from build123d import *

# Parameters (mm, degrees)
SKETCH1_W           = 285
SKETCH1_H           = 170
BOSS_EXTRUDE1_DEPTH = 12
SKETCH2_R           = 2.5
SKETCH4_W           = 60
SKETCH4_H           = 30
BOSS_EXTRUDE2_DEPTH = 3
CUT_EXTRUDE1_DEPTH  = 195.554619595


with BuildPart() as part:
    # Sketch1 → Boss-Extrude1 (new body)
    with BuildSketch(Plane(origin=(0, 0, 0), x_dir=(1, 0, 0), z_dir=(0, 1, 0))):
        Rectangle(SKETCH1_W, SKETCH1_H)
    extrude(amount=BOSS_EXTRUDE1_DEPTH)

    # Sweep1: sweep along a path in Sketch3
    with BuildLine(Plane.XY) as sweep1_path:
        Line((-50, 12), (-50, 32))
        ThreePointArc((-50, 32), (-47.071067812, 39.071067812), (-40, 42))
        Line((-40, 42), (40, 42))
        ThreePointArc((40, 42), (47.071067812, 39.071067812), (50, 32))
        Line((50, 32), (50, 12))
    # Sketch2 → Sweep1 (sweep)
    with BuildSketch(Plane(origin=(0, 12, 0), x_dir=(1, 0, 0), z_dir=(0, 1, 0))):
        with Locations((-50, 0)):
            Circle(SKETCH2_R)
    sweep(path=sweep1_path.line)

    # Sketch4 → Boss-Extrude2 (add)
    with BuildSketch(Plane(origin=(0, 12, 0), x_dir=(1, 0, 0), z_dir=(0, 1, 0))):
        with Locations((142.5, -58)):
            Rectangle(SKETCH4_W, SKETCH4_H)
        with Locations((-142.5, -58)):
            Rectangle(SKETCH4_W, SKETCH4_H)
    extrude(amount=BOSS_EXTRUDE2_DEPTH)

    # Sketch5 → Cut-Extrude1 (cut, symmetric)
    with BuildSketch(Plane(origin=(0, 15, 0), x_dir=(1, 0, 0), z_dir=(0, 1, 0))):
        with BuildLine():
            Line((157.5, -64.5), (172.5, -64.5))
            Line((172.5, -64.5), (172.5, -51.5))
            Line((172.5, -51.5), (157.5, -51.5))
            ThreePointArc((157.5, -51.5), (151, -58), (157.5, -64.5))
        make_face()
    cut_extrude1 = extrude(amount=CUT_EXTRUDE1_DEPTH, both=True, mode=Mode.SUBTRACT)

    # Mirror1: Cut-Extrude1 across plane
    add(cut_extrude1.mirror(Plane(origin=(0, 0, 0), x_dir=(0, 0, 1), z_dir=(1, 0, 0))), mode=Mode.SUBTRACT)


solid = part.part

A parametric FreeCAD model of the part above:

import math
import FreeCAD as App
import Part
import Sketcher
from FreeCAD import Vector
Q = App.Units.Quantity


def add_polygon(sketch, points):
    """Adds a closed chain of lines whose ends are joined by coincident constraints."""
    first, n = sketch.GeometryCount, len(points)
    for a, b in zip(points, points[1:] + points[:1]):
        sketch.addGeometry(Part.LineSegment(App.Vector(*a, 0), App.Vector(*b, 0)), False)
    for i in range(n):
        sketch.addConstraint(Sketcher.Constraint("Coincident", first + i, 2, first + (i + 1) % n, 1))

doc = App.newDocument("Part")
body = doc.addObject("PartDesign::Body", "Body")

# Sketch on XZ plane
sketch1 = body.newObject("Sketcher::SketchObject", "Sketch")
sketch1.AttachmentSupport = (doc.getObject("XZ_Plane"), [""])
sketch1.MapMode = "FlatFace"
add_polygon(sketch1, [(-142, -85), (-142, 85), (142, 85), (142, -85)])  # lines 0-3
sketch1.addConstraint([
    Sketcher.Constraint("Vertical", 0),
    Sketcher.Constraint("Horizontal", 1),
    Sketcher.Constraint("Vertical", 2),
    Sketcher.Constraint("Horizontal", 3),
    Sketcher.Constraint("Symmetric", 0, 2, 2, 2, -1, 1),
    Sketcher.Constraint("DistanceX", 1, 1, 1, 2, Q("285 mm")),
    Sketcher.Constraint("DistanceY", 0, 1, 0, 2, Q("170 mm")),
])
pad1 = body.newObject("PartDesign::Pad", "Pad")
pad1.Profile = sketch1
pad1.Length = 12
pad1.Reversed = True

# Sketch on XZ plane
sketch2 = body.newObject("Sketcher::SketchObject", "Sketch001")
sketch2.AttachmentSupport = (doc.getObject("XZ_Plane"), [""])
sketch2.MapMode = "FlatFace"
sketch2.AttachmentOffset = App.Placement(Vector(0, 0, -12), App.Rotation())
sketch2.addGeometry(Part.Circle(Vector(-50, 0, 0), Vector(0, 0, 1), 2.5), False)
sketch2.addConstraint([
    Sketcher.Constraint("PointOnObject", 0, 3, -1),
    Sketcher.Constraint("Diameter", 0, Q("5 mm")),
    Sketcher.Constraint("DistanceX", 0, 3, -1, 1, Q("50 mm")),
])

# Sketch on XY plane
sketch3 = body.newObject("Sketcher::SketchObject", "Sketch002")
sketch3.AttachmentSupport = (doc.getObject("XY_Plane"), [""])
sketch3.MapMode = "FlatFace"
sketch3.addGeometry([
    Part.LineSegment(Vector(-50, 12, 0), Vector(-50, 32, 0)),  # 0
    Part.ArcOfCircle(Part.Circle(Vector(-40, 32, 0), Vector(0, 0, 1), 10), math.radians(90), math.radians(180)),  # 1
    Part.LineSegment(Vector(-40, 42, 0), Vector(40, 42, 0)),  # 2
    Part.ArcOfCircle(Part.Circle(Vector(40, 32, 0), Vector(0, 0, 1), 10), math.radians(0), math.radians(90)),  # 3
    Part.LineSegment(Vector(50, 32, 0), Vector(50, 12, 0)),  # 4
], False)
sketch3.addConstraint([
    Sketcher.Constraint("Tangent", 0, 2, 1, 2),
    Sketcher.Constraint("Tangent", 1, 1, 2, 1),
    Sketcher.Constraint("Tangent", 2, 2, 3, 2),
    Sketcher.Constraint("Tangent", 3, 1, 4, 1),
    Sketcher.Constraint("Vertical", 0),
    Sketcher.Constraint("Horizontal", 2),
    Sketcher.Constraint("Vertical", 4),
    Sketcher.Constraint("Equal", 1, 3),
    Sketcher.Constraint("Symmetric", 0, 1, 4, 2, -2),
    Sketcher.Constraint("Radius", 1, Q("10 mm")),
    Sketcher.Constraint("DistanceX", 2, 1, 2, 2, Q("80 mm")),
    Sketcher.Constraint("DistanceY", 0, 1, 0, 2, Q("20 mm")),
    Sketcher.Constraint("DistanceY", -1, 1, 1, 3, Q("32 mm")),
])
doc.recompute()

additivepipe = body.newObject("PartDesign::AdditivePipe", "AdditivePipe")
additivepipe.Profile = sketch2
additivepipe.Spine = (sketch3, ["Edge1", "Edge2", "Edge3", "Edge4", "Edge5"])

# Sketch on XZ plane
sketch4 = body.newObject("Sketcher::SketchObject", "Sketch003")
sketch4.AttachmentSupport = (doc.getObject("XZ_Plane"), [""])
sketch4.MapMode = "FlatFace"
sketch4.AttachmentOffset = App.Placement(Vector(0, 0, -12), App.Rotation())
add_polygon(sketch4, [(112, 43), (112, 73), (172, 73), (172, 43)])  # lines 0-3
add_polygon(sketch4, [(-172, 43), (-172, 73), (-112, 73), (-112, 43)])  # lines 4-7
sketch4.addConstraint([
    Sketcher.Constraint("Vertical", 0),
    Sketcher.Constraint("Horizontal", 1),
    Sketcher.Constraint("Vertical", 2),
    Sketcher.Constraint("Horizontal", 3),
    Sketcher.Constraint("Vertical", 4),
    Sketcher.Constraint("Horizontal", 5),
    Sketcher.Constraint("Vertical", 6),
    Sketcher.Constraint("Horizontal", 7),
    Sketcher.Constraint("Symmetric", 1, 2, 4, 2, -2),
    Sketcher.Constraint("Symmetric", 3, 2, 6, 2, -2),
    Sketcher.Constraint("DistanceX", 1, 1, 1, 2, Q("60 mm")),
    Sketcher.Constraint("DistanceY", 0, 1, 0, 2, Q("30 mm")),
    Sketcher.Constraint("DistanceY", -1, 1, 0, 2, Q("73 mm")),
    Sketcher.Constraint("DistanceX", 4, 2, 0, 2, Q("285 mm")),
])
pad2 = body.newObject("PartDesign::Pad", "Pad001")
pad2.Profile = sketch4
pad2.Length = 3
pad2.Reversed = True

# Sketch on XZ plane
sketch5 = body.newObject("Sketcher::SketchObject", "Sketch004")
sketch5.AttachmentSupport = (doc.getObject("XZ_Plane"), [""])
sketch5.MapMode = "FlatFace"
sketch5.AttachmentOffset = App.Placement(Vector(0, 0, -15), App.Rotation())
sketch5.addGeometry([
    Part.LineSegment(Vector(158, 64, 0), Vector(172, 64, 0)),
    Part.LineSegment(Vector(172, 64, 0), Vector(172, 52, 0)),
    Part.LineSegment(Vector(172, 52, 0), Vector(158, 52, 0)),
    Part.ArcOfCircle(Part.Circle(Vector(158, 58, 0), Vector(0, 0, 1), 6), math.radians(90), math.radians(270)),
], False)
sketch5.addConstraint([
    Sketcher.Constraint("Coincident", 0, 2, 1, 1),
    Sketcher.Constraint("Coincident", 1, 2, 2, 1),
    Sketcher.Constraint("Tangent", 2, 2, 3, 2),
    Sketcher.Constraint("Tangent", 3, 1, 0, 1),
    Sketcher.Constraint("Horizontal", 0),
    Sketcher.Constraint("Vertical", 1),
    Sketcher.Constraint("Horizontal", 2),
    Sketcher.Constraint("Radius", 3, Q("6.5 mm")),
    Sketcher.Constraint("DistanceX", 0, 1, 0, 2, Q("15 mm")),
    Sketcher.Constraint("DistanceY", -1, 1, 3, 3, Q("58 mm")),
    Sketcher.Constraint("DistanceX", -1, 1, 3, 3, Q("157.5 mm")),
])
pocket1 = body.newObject("PartDesign::Pocket", "Pocket")
pocket1.Profile = sketch5
pocket1.Length = 391.109239
pocket1.Midplane = True
doc.recompute()

mirrored = body.newObject("PartDesign::Mirrored", "Mirrored")
mirrored.Originals = [pocket1]
mirrored.MirrorPlane = (doc.getObject("YZ_Plane"), [""])
body.Tip = mirrored

doc.recompute()
